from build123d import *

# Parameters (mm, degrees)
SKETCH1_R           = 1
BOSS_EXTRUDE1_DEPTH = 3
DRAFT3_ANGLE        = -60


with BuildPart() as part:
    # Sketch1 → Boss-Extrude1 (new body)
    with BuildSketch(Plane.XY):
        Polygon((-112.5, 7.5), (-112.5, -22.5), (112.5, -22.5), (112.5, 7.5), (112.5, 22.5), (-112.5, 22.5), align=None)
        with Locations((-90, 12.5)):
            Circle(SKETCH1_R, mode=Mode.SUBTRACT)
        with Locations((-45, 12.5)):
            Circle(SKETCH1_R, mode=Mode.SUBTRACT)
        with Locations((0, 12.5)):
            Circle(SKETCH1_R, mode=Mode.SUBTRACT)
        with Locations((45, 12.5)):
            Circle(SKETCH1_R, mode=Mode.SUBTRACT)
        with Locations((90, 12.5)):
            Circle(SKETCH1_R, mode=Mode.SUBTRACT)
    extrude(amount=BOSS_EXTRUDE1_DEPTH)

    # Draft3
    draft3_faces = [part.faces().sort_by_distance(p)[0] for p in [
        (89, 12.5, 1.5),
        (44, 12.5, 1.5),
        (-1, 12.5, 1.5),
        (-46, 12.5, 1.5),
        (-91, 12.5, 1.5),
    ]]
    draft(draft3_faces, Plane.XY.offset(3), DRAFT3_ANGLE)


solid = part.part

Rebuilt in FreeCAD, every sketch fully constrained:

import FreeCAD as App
import Part
import Sketcher

V = App.Vector
Q = App.Units.Quantity


def faces_at(feature, points):
    """Names of the faces that lie closest to the given points."""
    faces = feature.Shape.Faces
    near = lambda p: min(range(len(faces)), key=lambda i: faces[i].distToShape(Part.Vertex(*p))[0])
    return sorted({f"Face{near(p) + 1}" for p in points})


def add_polygon(sketch, points):
    """Adds a closed chain of lines whose ends are joined by coincident constraints."""
    first, n = sketch.GeometryCount, len(points)
    for a, b in zip(points, points[1:] + points[:1]):
        sketch.addGeometry(Part.LineSegment(App.Vector(*a, 0), App.Vector(*b, 0)), False)
    for i in range(n):
        sketch.addConstraint(Sketcher.Constraint("Coincident", first + i, 2, first + (i + 1) % n, 1))

doc = App.newDocument("Part")
body = doc.addObject("PartDesign::Body", "Body")

# Sketch on XY plane
sketch1 = body.newObject("Sketcher::SketchObject", "Sketch")
sketch1.AttachmentSupport = (doc.getObject("XY_Plane"), [""])
sketch1.MapMode = "FlatFace"
add_polygon(sketch1, [(-112.5, -22.5), (112.5, -22.5), (112.5, 22.5), (-112.5, 22.5)])  # lines 0-3
sketch1.addGeometry(Part.Circle(V(-90, 12.5, 0), V(0, 0, 1), 1), False)  # 4
sketch1.addGeometry(Part.Circle(V(-45, 12.5, 0), V(0, 0, 1), 1), False)  # 5
sketch1.addGeometry(Part.Circle(V(0, 12.5, 0), V(0, 0, 1), 1), False)  # 6
sketch1.addGeometry(Part.Circle(V(45, 12.5, 0), V(0, 0, 1), 1), False)  # 7
sketch1.addGeometry(Part.Circle(V(90, 12.5, 0), V(0, 0, 1), 1), False)  # 8
sketch1.addConstraint([
    Sketcher.Constraint("Horizontal", 0),
    Sketcher.Constraint("Vertical", 1),
    Sketcher.Constraint("Horizontal", 2),
    Sketcher.Constraint("Vertical", 3),
    Sketcher.Constraint("Equal", 4, 5),
    Sketcher.Constraint("Equal", 5, 6),
    Sketcher.Constraint("Equal", 6, 7),
    Sketcher.Constraint("Equal", 7, 8),
    Sketcher.Constraint("Symmetric", 0, 2, 2, 2, -1, 1),
    Sketcher.Constraint("Symmetric", 5, 3, 7, 3, -2),
    Sketcher.Constraint("Symmetric", 4, 3, 8, 3, -2),
    Sketcher.Constraint("PointOnObject", 6, 3, -2),
    Sketcher.Constraint("Horizontal", 4, 3, 5, 3),
    Sketcher.Constraint("Horizontal", 5, 3, 6, 3),
    Sketcher.Constraint("Diameter", 4, Q("2 mm")),
    Sketcher.Constraint("DistanceX", 0, 1, 0, 2, Q("225 mm")),
    Sketcher.Constraint("DistanceY", 1, 1, 1, 2, Q("45 mm")),
    Sketcher.Constraint("DistanceX", 4, 3, -1, 1, Q("90 mm")),
    Sketcher.Constraint("DistanceX", 5, 3, -1, 1, Q("45 mm")),
    Sketcher.Constraint("DistanceY", 0, 2, 8, 3, Q("35 mm")),
])
pad1 = body.newObject("PartDesign::Pad", "Pad")
pad1.Profile = sketch1
pad1.Length = 3
doc.recompute()

datumplane = body.newObject("PartDesign::Plane", "DatumPlane")
datumplane.AttachmentSupport = (doc.getObject("XY_Plane"), [""])
datumplane.MapMode = "FlatFace"
datumplane.AttachmentOffset = App.Placement(V(0, 0, 3), App.Rotation())
draft = body.newObject("PartDesign::Draft", "Draft")
draft.Base = (pad1, faces_at(pad1, [
    (89, 12.5, 1.5),
    (44, 12.5, 1.5),
    (-1, 12.5, 1.5),
    (-46, 12.5, 1.5),
    (-91, 12.5, 1.5),
]))
draft.NeutralPlane = (datumplane, [""])
draft.Angle = 60
draft.Reversed = True

doc.recompute()
